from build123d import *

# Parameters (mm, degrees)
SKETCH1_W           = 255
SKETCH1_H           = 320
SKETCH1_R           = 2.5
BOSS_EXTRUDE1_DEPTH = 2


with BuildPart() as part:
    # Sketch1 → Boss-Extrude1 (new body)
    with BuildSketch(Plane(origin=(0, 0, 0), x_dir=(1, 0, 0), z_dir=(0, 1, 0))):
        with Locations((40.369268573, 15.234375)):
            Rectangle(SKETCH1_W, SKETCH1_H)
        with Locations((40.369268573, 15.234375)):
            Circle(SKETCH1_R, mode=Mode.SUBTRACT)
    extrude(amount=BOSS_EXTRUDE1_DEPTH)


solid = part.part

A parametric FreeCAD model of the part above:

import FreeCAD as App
import Part
import Sketcher
Q = App.Units.Quantity


def add_polygon(sketch, points):
    """Adds a closed chain of lines whose ends are joined by coincident constraints."""
    first, n = sketch.GeometryCount, len(points)
    for a, b in zip(points, points[1:] + points[:1]):
        sketch.addGeometry(Part.LineSegment(App.Vector(*a, 0), App.Vector(*b, 0)), False)
    for i in range(n):
        sketch.addConstraint(Sketcher.Constraint("Coincident", first + i, 2, first + (i + 1) % n, 1))

doc = App.newDocument("Part")
params = doc.addObject("Spreadsheet::Sheet", "Params")
for row, (alias, value) in enumerate([
    ("sketch1_diameter", "5 mm"),
    ("sketch1_width", "255 mm"),
    ("sketch1_height", "320 mm"),
    ("pad1_length", "2 mm"),
], start=1):
    params.set(f"A{row}", alias)
    params.set(f"B{row}", "=" + value)
    params.setAlias(f"B{row}", alias)

body = doc.addObject("PartDesign::Body", "Body")

sketch1 = doc.addObject("Sketcher::SketchObject", "Sketch")
body.addObject(sketch1)
sketch1.AttachmentSupport = (doc.XZ_Plane, [""])
sketch1.MapMode = "FlatFace"
add_polygon(sketch1, [(-87.1, -175.2), (-87.1, 144.8), (167.9, 144.8), (167.9, -175.2)])
sketch1.addGeometry(Part.Circle(App.Vector(40.4, -15.2, 0), App.Vector(0, 0, 1), 2.5), False)
sketch1.addConstraint([
    Sketcher.Constraint("Vertical", 0),
    Sketcher.Constraint("Horizontal", 1),
    Sketcher.Constraint("Vertical", 2),
    Sketcher.Constraint("Horizontal", 3),
    Sketcher.Constraint("Diameter", 4, Q("5 mm")),
    Sketcher.Constraint("DistanceX", 1, 1, 1, 2, Q("255 mm")),
    Sketcher.Constraint("DistanceY", 0, 1, 0, 2, Q("320 mm")),
    Sketcher.Constraint("DistanceY", 4, 3, 0, 2, Q("160 mm")),
    Sketcher.Constraint("DistanceX", 0, 2, 4, 3, Q("127.5 mm")),
    Sketcher.Constraint("DistanceX", -1, 1, 4, 3, Q("40.369269 mm")),
    Sketcher.Constraint("DistanceY", 4, 3, -1, 1, Q("15.234375 mm")),
])
sketch1.setExpression("Constraints[8]", "Params.sketch1_diameter")
sketch1.setExpression("Constraints[9]", "Params.sketch1_width")
sketch1.setExpression("Constraints[10]", "Params.sketch1_height")
pad1 = doc.addObject("PartDesign::Pad", "Pad")
body.addObject(pad1)
pad1.Profile = sketch1
pad1.setExpression("Length", "Params.pad1_length")
pad1.Reversed = True

doc.recompute()
